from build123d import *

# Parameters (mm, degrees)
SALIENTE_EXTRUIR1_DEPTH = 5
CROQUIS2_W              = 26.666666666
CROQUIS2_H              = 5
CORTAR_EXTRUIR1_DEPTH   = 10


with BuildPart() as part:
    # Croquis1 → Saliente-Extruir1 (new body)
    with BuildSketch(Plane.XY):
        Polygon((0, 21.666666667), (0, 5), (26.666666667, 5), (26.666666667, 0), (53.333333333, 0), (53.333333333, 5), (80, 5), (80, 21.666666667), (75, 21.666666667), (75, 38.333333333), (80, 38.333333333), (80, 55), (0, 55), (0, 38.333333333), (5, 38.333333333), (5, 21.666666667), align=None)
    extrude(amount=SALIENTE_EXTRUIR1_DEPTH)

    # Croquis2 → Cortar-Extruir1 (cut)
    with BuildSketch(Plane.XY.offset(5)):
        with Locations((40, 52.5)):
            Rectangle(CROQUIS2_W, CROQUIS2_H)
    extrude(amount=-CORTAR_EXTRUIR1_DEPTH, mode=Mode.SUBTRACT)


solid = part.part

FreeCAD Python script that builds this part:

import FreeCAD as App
import Part
import Sketcher

V = App.Vector
Q = App.Units.Quantity

doc = App.newDocument("Part")
body = doc.addObject("PartDesign::Body", "Body")

# Sketch on XY plane
sketch1 = body.newObject("Sketcher::SketchObject", "Sketch")
sketch1.AttachmentSupport = (doc.getObject("XY_Plane"), [""])
sketch1.MapMode = "FlatFace"
sketch1.addGeometry([
    Part.LineSegment(V(0, 22, 0), V(0, 5, 0)),  # 0
    Part.LineSegment(V(0, 5, 0), V(27, 5, 0)),  # 1
    Part.LineSegment(V(27, 5, 0), V(27, 0, 0)),  # 2
    Part.LineSegment(V(27, 0, 0), V(53, 0, 0)),  # 3
    Part.LineSegment(V(53, 0, 0), V(53, 5, 0)),  # 4
    Part.LineSegment(V(53, 5, 0), V(80, 5, 0)),  # 5
    Part.LineSegment(V(80, 5, 0), V(80, 22, 0)),  # 6
    Part.LineSegment(V(80, 22, 0), V(75, 22, 0)),  # 7
    Part.LineSegment(V(75, 22, 0), V(75, 38, 0)),  # 8
    Part.LineSegment(V(75, 38, 0), V(80, 38, 0)),  # 9
    Part.LineSegment(V(80, 38, 0), V(80, 55, 0)),  # 10
    Part.LineSegment(V(80, 55, 0), V(0, 55, 0)),  # 11
    Part.LineSegment(V(0, 55, 0), V(0, 38, 0)),  # 12
    Part.LineSegment(V(0, 38, 0), V(5, 38, 0)),  # 13
    Part.LineSegment(V(5, 38, 0), V(5, 22, 0)),  # 14
    Part.LineSegment(V(5, 22, 0), V(0, 22, 0)),  # 15
], False)
sketch1.addConstraint([
    Sketcher.Constraint("Coincident", 0, 2, 1, 1),
    Sketcher.Constraint("Coincident", 1, 2, 2, 1),
    Sketcher.Constraint("Coincident", 2, 2, 3, 1),
    Sketcher.Constraint("Coincident", 3, 2, 4, 1),
    Sketcher.Constraint("Coincident", 4, 2, 5, 1),
    Sketcher.Constraint("Coincident", 5, 2, 6, 1),
    Sketcher.Constraint("Coincident", 6, 2, 7, 1),
    Sketcher.Constraint("Coincident", 7, 2, 8, 1),
    Sketcher.Constraint("Coincident", 8, 2, 9, 1),
    Sketcher.Constraint("Coincident", 9, 2, 10, 1),
    Sketcher.Constraint("Coincident", 10, 2, 11, 1),
    Sketcher.Constraint("Coincident", 11, 2, 12, 1),
    Sketcher.Constraint("Coincident", 12, 2, 13, 1),
    Sketcher.Constraint("Coincident", 13, 2, 14, 1),
    Sketcher.Constraint("Coincident", 14, 2, 15, 1),
    Sketcher.Constraint("Coincident", 15, 2, 0, 1),
    Sketcher.Constraint("Vertical", 0),
    Sketcher.Constraint("Horizontal", 1),
    Sketcher.Constraint("Vertical", 2),
    Sketcher.Constraint("Horizontal", 3),
    Sketcher.Constraint("Vertical", 4),
    Sketcher.Constraint("Horizontal", 5),
    Sketcher.Constraint("Vertical", 6),
    Sketcher.Constraint("Horizontal", 7),
    Sketcher.Constraint("Vertical", 8),
    Sketcher.Constraint("Horizontal", 9),
    Sketcher.Constraint("Vertical", 10),
    Sketcher.Constraint("Horizontal", 11),
    Sketcher.Constraint("Vertical", 12),
    Sketcher.Constraint("Horizontal", 13),
    Sketcher.Constraint("Vertical", 14),
    Sketcher.Constraint("Horizontal", 15),
    Sketcher.Constraint("PointOnObject", 0, 2, -2),
    Sketcher.Constraint("PointOnObject", 2, 2, -1),
    Sketcher.Constraint("PointOnObject", 11, 2, -2),
    Sketcher.Constraint("Horizontal", 1, 2, 4, 2),
    Sketcher.Constraint("Horizontal", 9, 2, 12, 2),
    Sketcher.Constraint("Horizontal", 7, 2, 14, 2),
    Sketcher.Constraint("Vertical", 6, 2, 9, 2),
    Sketcher.Constraint("Equal", 1, 3),
    Sketcher.Constraint("Equal", 3, 5),
    Sketcher.Constraint("Equal", 9, 13),
    Sketcher.Constraint("Equal", 15, 2),
    Sketcher.Constraint("Equal", 6, 8),
    Sketcher.Constraint("Equal", 8, 10),
    Sketcher.Constraint("DistanceX", 7, 2, 7, 1, Q("5 mm")),
    Sketcher.Constraint("DistanceX", 11, 2, 11, 1, Q("80 mm")),
    Sketcher.Constraint("DistanceY", -1, 1, 10, 2, Q("55 mm")),
])
pad1 = body.newObject("PartDesign::Pad", "Pad")
pad1.Profile = sketch1
pad1.Length = 5

# Sketch on XY plane
sketch2 = body.newObject("Sketcher::SketchObject", "Sketch001")
sketch2.AttachmentSupport = (doc.getObject("XY_Plane"), [""])
sketch2.MapMode = "FlatFace"
sketch2.AttachmentOffset = App.Placement(V(0, 0, 5), App.Rotation())
sketch2.addGeometry([
    Part.LineSegment(V(27, 55, 0), V(27, 50, 0)),
    Part.LineSegment(V(27, 50, 0), V(53, 50, 0)),
    Part.LineSegment(V(53, 50, 0), V(53, 55, 0)),
    Part.LineSegment(V(53, 55, 0), V(27, 55, 0)),
], False)
sketch2.addConstraint([
    Sketcher.Constraint("Coincident", 0, 2, 1, 1),
    Sketcher.Constraint("Coincident", 1, 2, 2, 1),
    Sketcher.Constraint("Coincident", 2, 2, 3, 1),
    Sketcher.Constraint("Coincident", 3, 2, 0, 1),
    Sketcher.Constraint("Vertical", 0),
    Sketcher.Constraint("Horizontal", 1),
    Sketcher.Constraint("Vertical", 2),
    Sketcher.Constraint("Horizontal", 3),
    Sketcher.Constraint("DistanceY", 0, 2, 0, 1, Q("5 mm")),
    Sketcher.Constraint("DistanceY", -1, 1, 0, 2, Q("50 mm")),
    Sketcher.Constraint("DistanceX", 1, 1, 1, 2, Q("26.666667 mm")),
    Sketcher.Constraint("DistanceX", -1, 1, 0, 2, Q("26.666667 mm")),
])
pocket1 = body.newObject("PartDesign::Pocket", "Pocket")
pocket1.Profile = sketch2
pocket1.Length = 10

doc.recompute()
